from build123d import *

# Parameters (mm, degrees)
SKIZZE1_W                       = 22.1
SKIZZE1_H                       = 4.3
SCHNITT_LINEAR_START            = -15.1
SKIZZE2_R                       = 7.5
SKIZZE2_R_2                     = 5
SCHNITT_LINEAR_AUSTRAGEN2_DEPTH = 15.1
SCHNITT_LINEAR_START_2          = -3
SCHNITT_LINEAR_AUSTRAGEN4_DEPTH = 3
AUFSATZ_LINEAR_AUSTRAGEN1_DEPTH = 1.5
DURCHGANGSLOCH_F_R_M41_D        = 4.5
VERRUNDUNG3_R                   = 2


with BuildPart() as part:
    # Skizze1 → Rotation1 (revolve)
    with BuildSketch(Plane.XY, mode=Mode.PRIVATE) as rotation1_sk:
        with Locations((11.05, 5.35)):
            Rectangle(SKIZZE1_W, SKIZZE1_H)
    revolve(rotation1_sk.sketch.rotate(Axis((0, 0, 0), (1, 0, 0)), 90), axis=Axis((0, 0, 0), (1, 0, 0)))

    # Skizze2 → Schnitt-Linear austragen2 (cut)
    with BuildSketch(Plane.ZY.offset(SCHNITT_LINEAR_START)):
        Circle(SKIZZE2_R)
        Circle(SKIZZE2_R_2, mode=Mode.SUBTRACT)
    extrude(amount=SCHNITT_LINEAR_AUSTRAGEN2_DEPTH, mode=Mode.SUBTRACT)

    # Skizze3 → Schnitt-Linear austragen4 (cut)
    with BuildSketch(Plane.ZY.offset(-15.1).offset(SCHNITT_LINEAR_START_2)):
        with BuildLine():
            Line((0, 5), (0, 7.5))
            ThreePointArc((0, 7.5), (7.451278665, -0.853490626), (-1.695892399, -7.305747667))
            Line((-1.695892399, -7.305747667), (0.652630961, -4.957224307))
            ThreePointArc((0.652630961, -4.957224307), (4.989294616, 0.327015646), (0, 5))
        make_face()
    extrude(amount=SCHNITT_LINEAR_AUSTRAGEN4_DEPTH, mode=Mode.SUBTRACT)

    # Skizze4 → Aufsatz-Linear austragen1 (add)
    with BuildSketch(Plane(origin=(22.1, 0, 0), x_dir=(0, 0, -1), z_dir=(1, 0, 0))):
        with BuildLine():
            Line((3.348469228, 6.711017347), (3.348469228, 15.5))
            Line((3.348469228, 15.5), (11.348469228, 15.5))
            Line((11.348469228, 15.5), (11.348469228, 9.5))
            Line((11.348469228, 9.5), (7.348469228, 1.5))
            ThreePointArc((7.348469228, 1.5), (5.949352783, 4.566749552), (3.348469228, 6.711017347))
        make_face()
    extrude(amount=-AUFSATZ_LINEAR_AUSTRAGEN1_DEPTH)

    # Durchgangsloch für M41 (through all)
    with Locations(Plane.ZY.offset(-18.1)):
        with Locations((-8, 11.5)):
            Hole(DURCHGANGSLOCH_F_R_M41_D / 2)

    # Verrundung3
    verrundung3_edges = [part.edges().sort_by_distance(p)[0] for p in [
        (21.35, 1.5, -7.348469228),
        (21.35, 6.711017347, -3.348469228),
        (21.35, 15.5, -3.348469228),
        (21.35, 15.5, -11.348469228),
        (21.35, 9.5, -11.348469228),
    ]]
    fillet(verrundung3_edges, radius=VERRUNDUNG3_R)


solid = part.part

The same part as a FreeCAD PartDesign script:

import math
import FreeCAD as App
import Part
import Sketcher
Q = App.Units.Quantity


def edges_at(feature, points):
    """Names of the edges that pass closest to the given points."""
    edges = feature.Shape.Edges
    near = lambda p: min(range(len(edges)), key=lambda i: edges[i].distToShape(Part.Vertex(*p))[0])
    return sorted({f"Edge{near(p) + 1}" for p in points})


def add_polygon(sketch, points):
    """Adds a closed chain of lines whose ends are joined by coincident constraints."""
    first, n = sketch.GeometryCount, len(points)
    for a, b in zip(points, points[1:] + points[:1]):
        sketch.addGeometry(Part.LineSegment(App.Vector(*a, 0), App.Vector(*b, 0)), False)
    for i in range(n):
        sketch.addConstraint(Sketcher.Constraint("Coincident", first + i, 2, first + (i + 1) % n, 1))

doc = App.newDocument("Part")
params = doc.addObject("Spreadsheet::Sheet", "Params")
for row, (alias, value) in enumerate([
    ("sketch1_width", "22.1 mm"),
    ("sketch1_height", "4.3 mm"),
    ("revolution_angle", "360 deg"),
    ("sketch2_diameter", "15 mm"),
    ("sketch2_diameter2", "10 mm"),
    ("pocket1_length", "15.1 mm"),
    ("sketch3_radius", "5 mm"),
    ("sketch3_radius2", "7.5 mm"),
    ("pocket2_length", "3 mm"),
    ("sketch4_radius", "7.5 mm"),
    ("sketch4_width", "6 mm"),
    ("sketch4_height", "8 mm"),
    ("pad1_length", "1.5 mm"),
    ("sketch5_diameter", "4.5 mm"),
    ("hole_diameter", "4.5 mm"),
    ("fillet_radius", "2 mm"),
], start=1):
    params.set(f"A{row}", alias)
    params.set(f"B{row}", "=" + value)
    params.setAlias(f"B{row}", alias)

body = doc.addObject("PartDesign::Body", "Body")

# Sketch on XY plane
sketch1 = doc.addObject("Sketcher::SketchObject", "Sketch")
body.addObject(sketch1)
sketch1.AttachmentSupport = (doc.XY_Plane, [""])
sketch1.MapMode = "FlatFace"
add_polygon(sketch1, [(0, 7.5), (0, 3.2), (22.1, 3.2), (22.1, 7.5)])  # lines 0-3
sketch1.addConstraint([
    Sketcher.Constraint("Vertical", 0),
    Sketcher.Constraint("Horizontal", 1),
    Sketcher.Constraint("Vertical", 2),
    Sketcher.Constraint("Horizontal", 3),
    Sketcher.Constraint("PointOnObject", 0, 2, -2),
    Sketcher.Constraint("DistanceX", 1, 1, 1, 2, 22.1),
    Sketcher.Constraint("DistanceY", 0, 2, 0, 1, 4.3),
    Sketcher.Constraint("DistanceY", -1, 1, 0, 2, 3.2),
])
sketch1.setExpression("Constraints[9]", "Params.sketch1_width")
sketch1.setExpression("Constraints[10]", "Params.sketch1_height")
revolution = doc.addObject("PartDesign::Revolution", "Revolution")
body.addObject(revolution)
revolution.Profile = sketch1
revolution.ReferenceAxis = (sketch1, ["H_Axis"])
revolution.setExpression("Angle", "Params.revolution_angle")

# Sketch on YZ plane
sketch2 = doc.addObject("Sketcher::SketchObject", "Sketch001")
body.addObject(sketch2)
sketch2.AttachmentSupport = (doc.YZ_Plane, [""])
sketch2.MapMode = "FlatFace"
sketch2.AttachmentOffset = App.Placement(App.Vector(0, 0, 15.1), App.Rotation())
sketch2.addGeometry([
    Part.Circle(App.Vector(0, 0, 0), App.Vector(0, 0, 1), 8),
    Part.Circle(App.Vector(0, 0, 0), App.Vector(0, 0, 1), 5),
], False)
sketch2.addConstraint([
    Sketcher.Constraint("Coincident", 0, 3, -1, 1),
    Sketcher.Constraint("Coincident", 1, 3, -1, 1),
    Sketcher.Constraint("Diameter", 0, 15.0),
    Sketcher.Constraint("Diameter", 1, 10.0),
])
sketch2.setExpression("Constraints[2]", "Params.sketch2_diameter")
sketch2.setExpression("Constraints[3]", "Params.sketch2_diameter2")
pocket1 = doc.addObject("PartDesign::Pocket", "Pocket")
body.addObject(pocket1)
pocket1.Profile = sketch2
pocket1.setExpression("Length", "Params.pocket1_length")

# Sketch on YZ plane
sketch3 = doc.addObject("Sketcher::SketchObject", "Sketch002")
body.addObject(sketch3)
sketch3.AttachmentSupport = (doc.YZ_Plane, [""])
sketch3.MapMode = "FlatFace"
sketch3.AttachmentOffset = App.Placement(App.Vector(0, 0, 18.1), App.Rotation())
sketch3.addGeometry([
    Part.LineSegment(App.Vector(7.5, 0, 0), App.Vector(5, 0, 0)),
    Part.ArcOfCircle(Part.Circle(App.Vector(0, 0, 0), App.Vector(0, 0, 1), 5), math.radians(0), math.radians(173)),
    Part.LineSegment(App.Vector(-5, 0.7, 0), App.Vector(-7.3, -1.7, 0)),
    Part.ArcOfCircle(Part.Circle(App.Vector(0, 0, 0), App.Vector(0, 0, 1), 7.5), math.radians(0), math.radians(193)),
], False)
sketch3.addConstraint([
    Sketcher.Constraint("Coincident", 0, 2, 1, 1),
    Sketcher.Constraint("Coincident", 1, 2, 2, 1),
    Sketcher.Constraint("Coincident", 2, 2, 3, 2),
    Sketcher.Constraint("Coincident", 3, 1, 0, 1),
    Sketcher.Constraint("Horizontal", 0),
    Sketcher.Constraint("Coincident", 1, 3, -1, 1),
    Sketcher.Constraint("Coincident", 3, 3, -1, 1),
    Sketcher.Constraint("PointOnObject", 0, 2, -1),
    Sketcher.Constraint("Radius", 1, 5.0),
    Sketcher.Constraint("Radius", 3, 7.5),
    Sketcher.Constraint("Angle", 2, Q("-135 deg")),
    Sketcher.Constraint("DistanceY", -1, 1, 1, 2, 0.652631),
])
sketch3.setExpression("Constraints[8]", "Params.sketch3_radius")
sketch3.setExpression("Constraints[9]", "Params.sketch3_radius2")
pocket2 = doc.addObject("PartDesign::Pocket", "Pocket001")
body.addObject(pocket2)
pocket2.Profile = sketch3
pocket2.setExpression("Length", "Params.pocket2_length")

# Sketch on YZ plane
sketch4 = doc.addObject("Sketcher::SketchObject", "Sketch003")
body.addObject(sketch4)
sketch4.AttachmentSupport = (doc.YZ_Plane, [""])
sketch4.MapMode = "FlatFace"
sketch4.AttachmentOffset = App.Placement(App.Vector(0, 0, 22.1), App.Rotation())
sketch4.addGeometry([
    Part.LineSegment(App.Vector(16, -3, 0), App.Vector(7, -3, 0)),  # 0
    Part.ArcOfCircle(Part.Circle(App.Vector(0, 0, 0), App.Vector(0, 0, 1), 7), math.radians(-78), math.radians(-27)),  # 1
    Part.LineSegment(App.Vector(2, -7, 0), App.Vector(10, -11, 0)),  # 2
    Part.LineSegment(App.Vector(10, -11, 0), App.Vector(16, -11, 0)),  # 3
    Part.LineSegment(App.Vector(16, -11, 0), App.Vector(16, -3, 0)),  # 4
], False)
sketch4.addConstraint([
    Sketcher.Constraint("Coincident", 0, 2, 1, 2),
    Sketcher.Constraint("Coincident", 1, 1, 2, 1),
    Sketcher.Constraint("Coincident", 2, 2, 3, 1),
    Sketcher.Constraint("Coincident", 3, 2, 4, 1),
    Sketcher.Constraint("Coincident", 4, 2, 0, 1),
    Sketcher.Constraint("Horizontal", 0),
    Sketcher.Constraint("Horizontal", 3),
    Sketcher.Constraint("Vertical", 4),
    Sketcher.Constraint("Coincident", 1, 3, -1, 1),
    Sketcher.Constraint("Radius", 1, 7.5),
    Sketcher.Constraint("DistanceX", 3, 1, 3, 2, 6.0),
    Sketcher.Constraint("DistanceY", 4, 1, 4, 2, 8.0),
    Sketcher.Constraint("DistanceY", 1, 1, 0, 2, 4.0),
    Sketcher.Constraint("DistanceX", 1, 1, 2, 2, 8.0),
    Sketcher.Constraint("DistanceX", -1, 1, 1, 1, 1.5),
])
sketch4.setExpression("Constraints[9]", "Params.sketch4_radius")
sketch4.setExpression("Constraints[10]", "Params.sketch4_width")
sketch4.setExpression("Constraints[11]", "Params.sketch4_height")
pad1 = doc.addObject("PartDesign::Pad", "Pad")
body.addObject(pad1)
pad1.Profile = sketch4
pad1.setExpression("Length", "Params.pad1_length")
pad1.Reversed = True

# Sketch on YZ plane
sketch5 = doc.addObject("Sketcher::SketchObject", "Sketch004")
body.addObject(sketch5)
sketch5.AttachmentSupport = (doc.YZ_Plane, [""])
sketch5.MapMode = "FlatFace"
sketch5.AttachmentOffset = App.Placement(App.Vector(0, 0, 18.1), App.Rotation())
sketch5.addGeometry(Part.Circle(App.Vector(11.5, -8, 0), App.Vector(0, 0, 1), 2.2), False)
sketch5.addConstraint([
    Sketcher.Constraint("Diameter", 0, 4.5),
    Sketcher.Constraint("DistanceY", 0, 3, -1, 1, 8.0),
    Sketcher.Constraint("DistanceX", -1, 1, 0, 3, 11.5),
])
sketch5.setExpression("Constraints[0]", "Params.sketch5_diameter")
doc.recompute()
hole = doc.addObject("PartDesign::Hole", "Hole")
body.addObject(hole)
hole.Profile = sketch5
hole.ThreadType = "None"
hole.setExpression("Diameter", "Params.hole_diameter")
hole.DepthType = "ThroughAll"
hole.Reversed = True
doc.recompute()

fillet = doc.addObject("PartDesign::Fillet", "Fillet")
body.addObject(fillet)
fillet.Base = (hole, edges_at(hole, [
    (21.35, 1.5, -7.348),
    (21.35, 6.711, -3.348),
    (21.35, 15.5, -3.348),
    (21.35, 15.5, -11.348),
    (21.35, 9.5, -11.348),
]))
fillet.setExpression("Radius", "Params.fillet_radius")

doc.recompute()
